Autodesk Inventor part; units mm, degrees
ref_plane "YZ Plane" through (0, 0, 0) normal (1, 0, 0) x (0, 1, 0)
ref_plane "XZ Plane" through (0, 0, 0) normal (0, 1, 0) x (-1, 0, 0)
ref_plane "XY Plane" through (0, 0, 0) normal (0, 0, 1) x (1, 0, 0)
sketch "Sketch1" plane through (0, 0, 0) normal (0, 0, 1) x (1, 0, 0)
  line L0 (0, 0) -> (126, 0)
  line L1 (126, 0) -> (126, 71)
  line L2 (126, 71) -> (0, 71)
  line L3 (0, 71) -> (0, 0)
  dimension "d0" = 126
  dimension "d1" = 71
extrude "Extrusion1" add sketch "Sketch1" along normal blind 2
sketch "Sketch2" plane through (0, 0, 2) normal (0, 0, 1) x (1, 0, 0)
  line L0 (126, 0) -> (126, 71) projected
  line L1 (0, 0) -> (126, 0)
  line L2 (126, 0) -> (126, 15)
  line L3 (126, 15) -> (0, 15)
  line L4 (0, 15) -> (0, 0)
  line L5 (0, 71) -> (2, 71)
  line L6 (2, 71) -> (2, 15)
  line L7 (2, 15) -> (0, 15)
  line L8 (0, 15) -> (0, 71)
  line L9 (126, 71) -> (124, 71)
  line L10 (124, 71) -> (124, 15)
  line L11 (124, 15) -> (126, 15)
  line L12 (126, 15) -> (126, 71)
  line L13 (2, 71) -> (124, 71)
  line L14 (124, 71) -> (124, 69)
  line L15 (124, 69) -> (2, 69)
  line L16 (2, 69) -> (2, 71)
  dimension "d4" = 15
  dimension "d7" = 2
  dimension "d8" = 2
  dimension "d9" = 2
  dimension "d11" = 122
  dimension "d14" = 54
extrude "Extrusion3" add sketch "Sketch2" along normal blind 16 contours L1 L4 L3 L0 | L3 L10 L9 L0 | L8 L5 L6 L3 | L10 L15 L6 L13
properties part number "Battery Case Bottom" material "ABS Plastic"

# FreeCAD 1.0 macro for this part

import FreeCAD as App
import Part
import Sketcher
from FreeCAD import Vector
Q = App.Units.Quantity

doc = App.newDocument("Part")
body = doc.addObject("PartDesign::Body", "Body")

sketch1 = body.newObject("Sketcher::SketchObject", "Sketch")
sketch1.AttachmentSupport = (doc.getObject("XY_Plane"), [""])
sketch1.MapMode = "FlatFace"
sketch1.addGeometry([
    Part.LineSegment(Vector(0, 71, 0), Vector(0, 0, 0)),
    Part.LineSegment(Vector(0, 0, 0), Vector(126, 0, 0)),
    Part.LineSegment(Vector(126, 0, 0), Vector(126, 71, 0)),
    Part.LineSegment(Vector(126, 71, 0), Vector(0, 71, 0)),
], False)
sketch1.addConstraint([
    Sketcher.Constraint("Coincident", 0, 2, 1, 1),
    Sketcher.Constraint("Coincident", 1, 2, 2, 1),
    Sketcher.Constraint("Coincident", 2, 2, 3, 1),
    Sketcher.Constraint("Coincident", 3, 2, 0, 1),
    Sketcher.Constraint("Vertical", 0),
    Sketcher.Constraint("Horizontal", 1),
    Sketcher.Constraint("Vertical", 2),
    Sketcher.Constraint("Horizontal", 3),
    Sketcher.Constraint("Coincident", 0, 2, -1, 1),
    Sketcher.Constraint("DistanceX", 1, 1, 1, 2, Q("126 mm")),
    Sketcher.Constraint("DistanceY", 0, 2, 0, 1, Q("71 mm")),
])
pad1 = body.newObject("PartDesign::Pad", "Pad")
pad1.Profile = sketch1
pad1.Length = 2

sketch2 = body.newObject("Sketcher::SketchObject", "Sketch001")
sketch2.AttachmentSupport = (doc.getObject("XY_Plane"), [""])
sketch2.MapMode = "FlatFace"
sketch2.AttachmentOffset = App.Placement(Vector(0, 0, 2), App.Rotation())
sketch2.addGeometry([
    Part.LineSegment(Vector(0, 0, 0), Vector(126, 0, 0)),
    Part.LineSegment(Vector(126, 0, 0), Vector(126, 71, 0)),
    Part.LineSegment(Vector(126, 71, 0), Vector(0, 71, 0)),
    Part.LineSegment(Vector(0, 71, 0), Vector(0, 0, 0)),
    Part.LineSegment(Vector(124, 15, 0), Vector(2, 15, 0)),
    Part.LineSegment(Vector(2, 15, 0), Vector(2, 69, 0)),
    Part.LineSegment(Vector(2, 69, 0), Vector(124, 69, 0)),
    Part.LineSegment(Vector(124, 69, 0), Vector(124, 15, 0)),
], False)
sketch2.addConstraint([
    Sketcher.Constraint("Coincident", 0, 2, 1, 1),
    Sketcher.Constraint("Coincident", 1, 2, 2, 1),
    Sketcher.Constraint("Coincident", 2, 2, 3, 1),
    Sketcher.Constraint("Coincident", 3, 2, 0, 1),
    Sketcher.Constraint("Coincident", 4, 2, 5, 1),
    Sketcher.Constraint("Coincident", 5, 2, 6, 1),
    Sketcher.Constraint("Coincident", 6, 2, 7, 1),
    Sketcher.Constraint("Coincident", 7, 2, 4, 1),
    Sketcher.Constraint("Horizontal", 0),
    Sketcher.Constraint("Vertical", 1),
    Sketcher.Constraint("Horizontal", 2),
    Sketcher.Constraint("Vertical", 3),
    Sketcher.Constraint("Horizontal", 4),
    Sketcher.Constraint("Vertical", 5),
    Sketcher.Constraint("Horizontal", 6),
    Sketcher.Constraint("Vertical", 7),
    Sketcher.Constraint("Coincident", 3, 2, -1, 1),
    Sketcher.Constraint("DistanceX", 4, 2, 4, 1, Q("122 mm")),
    Sketcher.Constraint("DistanceY", 5, 1, 5, 2, Q("54 mm")),
    Sketcher.Constraint("DistanceX", -1, 1, 4, 2, Q("2 mm")),
    Sketcher.Constraint("DistanceY", -1, 1, 4, 2, Q("15 mm")),
    Sketcher.Constraint("DistanceY", 5, 2, 2, 2, Q("2 mm")),
    Sketcher.Constraint("DistanceX", 6, 2, 1, 2, Q("2 mm")),
])
pad2 = body.newObject("PartDesign::Pad", "Pad001")
pad2.Profile = sketch2
pad2.Length = 16

doc.recompute()
